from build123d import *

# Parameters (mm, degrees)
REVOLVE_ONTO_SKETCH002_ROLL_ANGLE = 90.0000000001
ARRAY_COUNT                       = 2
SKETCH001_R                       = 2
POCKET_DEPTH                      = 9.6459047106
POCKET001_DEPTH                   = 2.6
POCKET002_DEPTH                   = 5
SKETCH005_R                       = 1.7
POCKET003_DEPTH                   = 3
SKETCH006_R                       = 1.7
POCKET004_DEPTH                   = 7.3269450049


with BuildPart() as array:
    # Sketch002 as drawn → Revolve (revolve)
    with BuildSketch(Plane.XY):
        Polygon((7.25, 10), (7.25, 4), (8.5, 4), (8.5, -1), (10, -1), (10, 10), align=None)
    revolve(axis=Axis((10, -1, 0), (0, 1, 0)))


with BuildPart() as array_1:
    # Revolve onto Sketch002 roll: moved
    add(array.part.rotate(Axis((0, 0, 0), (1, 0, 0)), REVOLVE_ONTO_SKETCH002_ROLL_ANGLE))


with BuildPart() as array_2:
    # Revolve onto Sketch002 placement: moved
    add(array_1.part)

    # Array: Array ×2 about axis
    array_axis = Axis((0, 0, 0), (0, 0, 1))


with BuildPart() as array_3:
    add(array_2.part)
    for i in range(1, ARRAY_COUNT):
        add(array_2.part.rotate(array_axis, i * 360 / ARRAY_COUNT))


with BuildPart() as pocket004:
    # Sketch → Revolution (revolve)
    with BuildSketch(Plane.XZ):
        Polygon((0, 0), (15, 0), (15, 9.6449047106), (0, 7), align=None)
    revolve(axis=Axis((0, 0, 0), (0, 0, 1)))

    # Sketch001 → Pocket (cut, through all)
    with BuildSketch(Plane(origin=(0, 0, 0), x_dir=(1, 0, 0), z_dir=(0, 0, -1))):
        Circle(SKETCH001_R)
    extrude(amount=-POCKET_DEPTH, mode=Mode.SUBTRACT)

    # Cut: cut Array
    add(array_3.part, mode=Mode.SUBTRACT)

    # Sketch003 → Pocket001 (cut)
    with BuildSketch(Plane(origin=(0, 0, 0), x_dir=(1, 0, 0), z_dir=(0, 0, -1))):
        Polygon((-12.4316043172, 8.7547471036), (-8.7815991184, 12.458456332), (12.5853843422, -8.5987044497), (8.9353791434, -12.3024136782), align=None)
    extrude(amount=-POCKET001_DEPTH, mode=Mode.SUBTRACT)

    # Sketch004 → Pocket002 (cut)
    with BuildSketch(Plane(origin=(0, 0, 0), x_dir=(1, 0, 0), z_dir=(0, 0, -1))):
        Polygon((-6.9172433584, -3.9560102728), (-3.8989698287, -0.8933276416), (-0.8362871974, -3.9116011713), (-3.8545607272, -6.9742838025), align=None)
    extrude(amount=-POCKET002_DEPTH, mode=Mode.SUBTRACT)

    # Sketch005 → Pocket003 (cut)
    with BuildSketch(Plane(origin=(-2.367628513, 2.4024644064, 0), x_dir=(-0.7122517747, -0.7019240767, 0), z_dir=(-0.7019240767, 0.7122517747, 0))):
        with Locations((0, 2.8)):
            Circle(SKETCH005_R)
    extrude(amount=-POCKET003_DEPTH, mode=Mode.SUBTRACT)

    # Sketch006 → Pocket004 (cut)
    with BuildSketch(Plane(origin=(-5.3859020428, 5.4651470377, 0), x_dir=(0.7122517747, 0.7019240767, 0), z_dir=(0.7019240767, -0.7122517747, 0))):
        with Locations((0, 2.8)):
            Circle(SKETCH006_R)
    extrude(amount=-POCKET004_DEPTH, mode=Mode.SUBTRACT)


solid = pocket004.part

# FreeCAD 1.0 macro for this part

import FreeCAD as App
import Part
import Sketcher
from FreeCAD import Vector
Q = App.Units.Quantity


def add_polygon(sketch, points):
    """Adds a closed chain of lines whose ends are joined by coincident constraints."""
    first, n = sketch.GeometryCount, len(points)
    for a, b in zip(points, points[1:] + points[:1]):
        sketch.addGeometry(Part.LineSegment(App.Vector(*a, 0), App.Vector(*b, 0)), False)
    for i in range(n):
        sketch.addConstraint(Sketcher.Constraint("Coincident", first + i, 2, first + (i + 1) % n, 1))

doc = App.newDocument("Part")
params = doc.addObject("Spreadsheet::Sheet", "Params")
for row, (alias, value) in enumerate([
    ("sketch1_height", "6 mm"),
    ("sketch1_height2", "5 mm"),
    ("sketch1_width", "1.5 mm"),
    ("sketch1_width2", "1.25 mm"),
    ("revolution_angle", "360 deg"),
    ("sketch2_width", "15 mm"),
    ("sketch2_height", "7 mm"),
    ("revolution2_angle", "360 deg"),
    ("sketch3_diameter", "4 mm"),
    ("sketch4_length", "5.2 mm"),
    ("pocket2_length", "2.6 mm"),
    ("sketch5_length", "4.3 mm"),
    ("pocket3_length", "5 mm"),
    ("sketch6_diameter", "3.4 mm"),
    ("pocket4_length", "3 mm"),
    ("sketch7_diameter", "3.4 mm"),
    ("pocket5_length", "7.326945 mm"),
], start=1):
    params.set(f"A{row}", alias)
    params.set(f"B{row}", "=" + value)
    params.setAlias(f"B{row}", alias)

body = doc.addObject("PartDesign::Body", "Body")

sketch1 = body.newObject("Sketcher::SketchObject", "Sketch")
sketch1.AttachmentSupport = (doc.getObject("XY_Plane"), [""])
sketch1.MapMode = "FlatFace"
add_polygon(sketch1, [(7.2, 10), (7.2, 4), (8.5, 4), (8.5, -1), (10, -1), (10, 10)])
sketch1.addGeometry(Part.LineSegment(Vector(10, -1, 0), Vector(10, 10, 0)), True)
sketch1.addConstraint([
    Sketcher.Constraint("Vertical", 0),
    Sketcher.Constraint("Horizontal", 1),
    Sketcher.Constraint("Vertical", 2),
    Sketcher.Constraint("Horizontal", 3),
    Sketcher.Constraint("Vertical", 4),
    Sketcher.Constraint("Horizontal", 5),
    Sketcher.Constraint("Vertical", 6),
    Sketcher.Constraint("Coincident", 6, 1, 3, 2),
    Sketcher.Constraint("Horizontal", 5, 2, 6, 2),
    Sketcher.Constraint("DistanceY", 0, 2, 0, 1, 6.0),
    Sketcher.Constraint("DistanceY", 2, 2, 2, 1, 5.0),
    Sketcher.Constraint("DistanceX", 3, 1, 3, 2, 1.5),
    Sketcher.Constraint("DistanceY", -1, 1, 0, 2, 4.0),
    Sketcher.Constraint("DistanceX", -1, 1, 3, 2, 10.0),
    Sketcher.Constraint("DistanceX", 1, 1, 1, 2, 1.25),
])
sketch1.setExpression("Constraints[15]", "Params.sketch1_height")
sketch1.setExpression("Constraints[16]", "Params.sketch1_height2")
sketch1.setExpression("Constraints[17]", "Params.sketch1_width")
sketch1.setExpression("Constraints[20]", "Params.sketch1_width2")
revolution = body.newObject("PartDesign::Revolution", "Revolution")
revolution.Profile = sketch1
revolution.ReferenceAxis = (sketch1, ["Axis0"])
revolution.setExpression("Angle", "Params.revolution_angle")
body2 = doc.addObject("PartDesign::Body", "Body001")
doc.recompute()

body.Placement = App.Placement(Vector(0, 0, 0), App.Rotation(Vector(1, 0, 0), 90))
boolean = body2.newObject("PartDesign::Boolean", "Boolean")
boolean.Type = "Fuse"
boolean.addObjects([body])
body3 = doc.addObject("PartDesign::Body", "Body002")
body3.AllowCompound = True
doc.recompute()

body3.BaseFeature = body2
doc.recompute()

body2.Placement = App.Placement(Vector(0, 0, 0), App.Rotation(Vector(0, 0, 1), 180))
boolean2 = body3.newObject("PartDesign::Boolean", "Boolean001")
boolean2.Type = "Fuse"
boolean2.addObjects([body2])
body4 = doc.addObject("PartDesign::Body", "Body003")

sketch2 = body4.newObject("Sketcher::SketchObject", "Sketch001")
sketch2.AttachmentSupport = (doc.getObject("XZ_Plane003"), [""])
sketch2.MapMode = "FlatFace"
add_polygon(sketch2, [(0, 0), (15, 0), (15, 10), (0, 7)])
sketch2.addConstraint([
    Sketcher.Constraint("Horizontal", 0),
    Sketcher.Constraint("Vertical", 1),
    Sketcher.Constraint("Vertical", 3),
    Sketcher.Constraint("Coincident", 3, 2, -1, 1),
    Sketcher.Constraint("DistanceX", 0, 1, 0, 2, 15.0),
    Sketcher.Constraint("DistanceY", 3, 2, 3, 1, 7.0),
    Sketcher.Constraint("Angle", 2, Q("-170 deg")),
])
sketch2.setExpression("Constraints[8]", "Params.sketch2_width")
sketch2.setExpression("Constraints[9]", "Params.sketch2_height")
revolution2 = body4.newObject("PartDesign::Revolution", "Revolution001")
revolution2.Profile = sketch2
revolution2.ReferenceAxis = (sketch2, ["V_Axis"])
revolution2.setExpression("Angle", "Params.revolution2_angle")

sketch3 = body4.newObject("Sketcher::SketchObject", "Sketch002")
sketch3.AttachmentSupport = (doc.getObject("XY_Plane003"), [""])
sketch3.MapMode = "FlatFace"
sketch3.addGeometry(Part.Circle(Vector(0, 0, 0), Vector(0, 0, 1), 2), False)
sketch3.addConstraint([
    Sketcher.Constraint("Coincident", 0, 3, -1, 1),
    Sketcher.Constraint("Diameter", 0, 4.0),
])
sketch3.setExpression("Constraints[1]", "Params.sketch3_diameter")
pocket1 = body4.newObject("PartDesign::Pocket", "Pocket")
pocket1.Profile = sketch3
pocket1.Type = "ThroughAll"
pocket1.Reversed = True
doc.recompute()

boolean3 = body4.newObject("PartDesign::Boolean", "Boolean002")
boolean3.Type = "Cut"
boolean3.addObjects([body3])

sketch4 = body4.newObject("Sketcher::SketchObject", "Sketch003")
sketch4.AttachmentSupport = (doc.getObject("XY_Plane003"), [""])
sketch4.MapMode = "FlatFace"
add_polygon(sketch4, [(-9, -12), (-12, -9), (9, 12), (13, 9)])
sketch4.addConstraint([
    Sketcher.Constraint("Perpendicular", 0, 1),
    Sketcher.Constraint("Perpendicular", 1, 2),
    Sketcher.Constraint("Perpendicular", 2, 3),
    Sketcher.Constraint("Distance", 0, 5.2),
    Sketcher.Constraint("Distance", 1, 29.9992),
    Sketcher.Constraint("DistanceX", 3, 2, -1, 1, 8.781599),
    Sketcher.Constraint("DistanceX", -1, 1, 1, 2, 8.935379),
    Sketcher.Constraint("DistanceY", 0, 2, -1, 1, 8.754747),
])
sketch4.setExpression("Constraints[7]", "Params.sketch4_length")
pocket2 = body4.newObject("PartDesign::Pocket", "Pocket001")
pocket2.Profile = sketch4
pocket2.setExpression("Length", "Params.pocket2_length")
pocket2.Reversed = True

sketch5 = body4.newObject("Sketcher::SketchObject", "Sketch004")
sketch5.AttachmentSupport = (doc.getObject("XY_Plane003"), [""])
sketch5.MapMode = "FlatFace"
add_polygon(sketch5, [(-3.9, 0.9), (-6.9, 4), (-3.9, 7), (-0.8, 3.9)])
sketch5.addConstraint([
    Sketcher.Constraint("Perpendicular", 0, 1),
    Sketcher.Constraint("Perpendicular", 1, 2),
    Sketcher.Constraint("Perpendicular", 2, 3),
    Sketcher.Constraint("Equal", 0, 1),
    Sketcher.Constraint("Distance", 0, 4.3),
    Sketcher.Constraint("DistanceY", -1, 1, 2, 2, 3.911601),
    Sketcher.Constraint("DistanceY", -1, 1, 0, 2, 3.95601),
    Sketcher.Constraint("DistanceX", 1, 2, -1, 1, 3.854561),
])
sketch5.setExpression("Constraints[8]", "Params.sketch5_length")
pocket3 = body4.newObject("PartDesign::Pocket", "Pocket002")
pocket3.Profile = sketch5
pocket3.setExpression("Length", "Params.pocket3_length")
pocket3.Reversed = True

sketch6 = body4.newObject("Sketcher::SketchObject", "Sketch005")
sketch6.Placement = App.Placement(Vector(-2.367629, 2.402464, 0), App.Rotation(Vector(-0.712251775, -0.701924077, 0), Vector(0, 0, 1.000000001), Vector(-0.701924077, 0.712251775, 0), "ZXY"))
sketch6.addGeometry(Part.Circle(Vector(0, 2.8, 0), Vector(0, 0, 1), 1.7), False)
sketch6.addConstraint([
    Sketcher.Constraint("PointOnObject", 0, 3, -2),
    Sketcher.Constraint("Diameter", 0, 3.4),
    Sketcher.Constraint("DistanceY", -1, 1, 0, 3, 2.8),
])
sketch6.setExpression("Constraints[1]", "Params.sketch6_diameter")
pocket4 = body4.newObject("PartDesign::Pocket", "Pocket003")
pocket4.Profile = sketch6
pocket4.setExpression("Length", "Params.pocket4_length")

sketch7 = body4.newObject("Sketcher::SketchObject", "Sketch006")
sketch7.Placement = App.Placement(Vector(-5.385902, 5.465147, 0), App.Rotation(Vector(0.712251775, 0.701924077, 0), Vector(0, 0, 1.000000001), Vector(0.701924077, -0.712251775, 0), "ZXY"))
sketch7.addGeometry(Part.Circle(Vector(0, 2.8, 0), Vector(0, 0, 1), 1.7), False)
sketch7.addConstraint([
    Sketcher.Constraint("PointOnObject", 0, 3, -2),
    Sketcher.Constraint("Diameter", 0, 3.4),
    Sketcher.Constraint("DistanceY", -1, 1, 0, 3, 2.8),
])
sketch7.setExpression("Constraints[1]", "Params.sketch7_diameter")
pocket5 = body4.newObject("PartDesign::Pocket", "Pocket004")
pocket5.Profile = sketch7
pocket5.setExpression("Length", "Params.pocket5_length")

doc.recompute()
